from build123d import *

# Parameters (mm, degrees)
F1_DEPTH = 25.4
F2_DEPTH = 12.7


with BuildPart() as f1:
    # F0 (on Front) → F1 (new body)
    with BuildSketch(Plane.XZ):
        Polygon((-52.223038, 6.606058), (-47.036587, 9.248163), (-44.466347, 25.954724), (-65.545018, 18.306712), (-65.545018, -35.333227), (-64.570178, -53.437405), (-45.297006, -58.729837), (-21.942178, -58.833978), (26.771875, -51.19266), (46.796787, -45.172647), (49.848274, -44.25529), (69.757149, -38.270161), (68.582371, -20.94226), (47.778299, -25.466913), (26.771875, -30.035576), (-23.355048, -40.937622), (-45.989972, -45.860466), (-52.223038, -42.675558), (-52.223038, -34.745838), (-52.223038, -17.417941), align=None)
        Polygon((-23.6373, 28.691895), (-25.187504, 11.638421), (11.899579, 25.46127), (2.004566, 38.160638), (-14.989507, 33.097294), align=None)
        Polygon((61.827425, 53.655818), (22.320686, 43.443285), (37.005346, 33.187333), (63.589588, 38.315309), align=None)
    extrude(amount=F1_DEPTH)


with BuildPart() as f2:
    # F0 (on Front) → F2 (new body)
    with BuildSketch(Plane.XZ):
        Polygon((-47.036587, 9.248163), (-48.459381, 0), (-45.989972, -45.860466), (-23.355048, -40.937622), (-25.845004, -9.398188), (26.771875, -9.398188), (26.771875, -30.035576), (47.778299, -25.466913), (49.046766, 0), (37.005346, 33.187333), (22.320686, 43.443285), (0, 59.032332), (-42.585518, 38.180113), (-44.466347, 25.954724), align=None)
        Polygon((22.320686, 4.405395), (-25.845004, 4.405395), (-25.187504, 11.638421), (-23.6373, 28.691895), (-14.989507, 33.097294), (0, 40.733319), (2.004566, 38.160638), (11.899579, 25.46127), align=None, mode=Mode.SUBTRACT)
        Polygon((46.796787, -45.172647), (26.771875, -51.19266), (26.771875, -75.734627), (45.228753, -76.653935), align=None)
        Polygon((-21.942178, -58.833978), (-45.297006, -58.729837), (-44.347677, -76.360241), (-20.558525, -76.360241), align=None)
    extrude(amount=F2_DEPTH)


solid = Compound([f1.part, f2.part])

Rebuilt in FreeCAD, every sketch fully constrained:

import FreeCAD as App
import Part
import Sketcher
Q = App.Units.Quantity

doc = App.newDocument("Part")
params = doc.addObject("Spreadsheet::Sheet", "Params")
for row, (alias, value) in enumerate([
    ("pad1_length", "1 in"),
    ("pad2_length", "0.5 in"),
], start=1):
    params.set(f"A{row}", alias)
    params.set(f"B{row}", "=" + value)
    params.setAlias(f"B{row}", alias)

body = doc.addObject("PartDesign::Body", "Body")
body.AllowCompound = True

sketch1 = body.newObject("Sketcher::SketchObject", "Sketch")
sketch1.AttachmentSupport = (doc.getObject("XZ_Plane"), [""])
sketch1.MapMode = "FlatFace"
sketch1.addGeometry([
    Part.LineSegment(App.Vector(-52.2, 6.6, 0), App.Vector(-47, 9.2, 0)),
    Part.LineSegment(App.Vector(-47, 9.2, 0), App.Vector(-44.5, 26, 0)),
    Part.LineSegment(App.Vector(-44.5, 26, 0), App.Vector(-65.5, 18.3, 0)),
    Part.LineSegment(App.Vector(-65.5, 18.3, 0), App.Vector(-65.5, -35.3, 0)),
    Part.LineSegment(App.Vector(-65.5, -35.3, 0), App.Vector(-64.6, -53.4, 0)),
    Part.LineSegment(App.Vector(-64.6, -53.4, 0), App.Vector(-45.3, -58.7, 0)),
    Part.LineSegment(App.Vector(-45.3, -58.7, 0), App.Vector(-21.9, -58.8, 0)),
    Part.LineSegment(App.Vector(-21.9, -58.8, 0), App.Vector(26.8, -51.2, 0)),
    Part.LineSegment(App.Vector(26.8, -51.2, 0), App.Vector(46.8, -45.2, 0)),
    Part.LineSegment(App.Vector(46.8, -45.2, 0), App.Vector(49.8, -44.3, 0)),
    Part.LineSegment(App.Vector(49.8, -44.3, 0), App.Vector(69.8, -38.3, 0)),
    Part.LineSegment(App.Vector(69.8, -38.3, 0), App.Vector(68.6, -20.9, 0)),
    Part.LineSegment(App.Vector(68.6, -20.9, 0), App.Vector(47.8, -25.5, 0)),
    Part.LineSegment(App.Vector(47.8, -25.5, 0), App.Vector(26.8, -30, 0)),
    Part.LineSegment(App.Vector(26.8, -30, 0), App.Vector(-23.4, -40.9, 0)),
    Part.LineSegment(App.Vector(-23.4, -40.9, 0), App.Vector(-46, -45.9, 0)),
    Part.LineSegment(App.Vector(-46, -45.9, 0), App.Vector(-52.2, -42.7, 0)),
    Part.LineSegment(App.Vector(-52.2, -42.7, 0), App.Vector(-52.2, 6.6, 0)),
    Part.LineSegment(App.Vector(-23.6, 28.7, 0), App.Vector(-25.2, 11.6, 0)),
    Part.LineSegment(App.Vector(-25.2, 11.6, 0), App.Vector(11.9, 25.5, 0)),
    Part.LineSegment(App.Vector(11.9, 25.5, 0), App.Vector(2, 38.2, 0)),
    Part.LineSegment(App.Vector(2, 38.2, 0), App.Vector(-15, 33.1, 0)),
    Part.LineSegment(App.Vector(-15, 33.1, 0), App.Vector(-23.6, 28.7, 0)),
    Part.LineSegment(App.Vector(61.8, 53.7, 0), App.Vector(22.3, 43.4, 0)),
    Part.LineSegment(App.Vector(22.3, 43.4, 0), App.Vector(37, 33.2, 0)),
    Part.LineSegment(App.Vector(37, 33.2, 0), App.Vector(63.6, 38.3, 0)),
    Part.LineSegment(App.Vector(63.6, 38.3, 0), App.Vector(61.8, 53.7, 0)),
], False)
sketch1.addConstraint([
    Sketcher.Constraint("Coincident", 0, 2, 1, 1),
    Sketcher.Constraint("Coincident", 1, 2, 2, 1),
    Sketcher.Constraint("Coincident", 2, 2, 3, 1),
    Sketcher.Constraint("Coincident", 3, 2, 4, 1),
    Sketcher.Constraint("Coincident", 4, 2, 5, 1),
    Sketcher.Constraint("Coincident", 5, 2, 6, 1),
    Sketcher.Constraint("Coincident", 6, 2, 7, 1),
    Sketcher.Constraint("Coincident", 7, 2, 8, 1),
    Sketcher.Constraint("Coincident", 8, 2, 9, 1),
    Sketcher.Constraint("Coincident", 9, 2, 10, 1),
    Sketcher.Constraint("Coincident", 10, 2, 11, 1),
    Sketcher.Constraint("Coincident", 11, 2, 12, 1),
    Sketcher.Constraint("Coincident", 12, 2, 13, 1),
    Sketcher.Constraint("Coincident", 13, 2, 14, 1),
    Sketcher.Constraint("Coincident", 14, 2, 15, 1),
    Sketcher.Constraint("Coincident", 15, 2, 16, 1),
    Sketcher.Constraint("Coincident", 16, 2, 17, 1),
    Sketcher.Constraint("Coincident", 17, 2, 0, 1),
    Sketcher.Constraint("Coincident", 18, 2, 19, 1),
    Sketcher.Constraint("Coincident", 19, 2, 20, 1),
    Sketcher.Constraint("Coincident", 20, 2, 21, 1),
    Sketcher.Constraint("Coincident", 21, 2, 22, 1),
    Sketcher.Constraint("Coincident", 22, 2, 18, 1),
    Sketcher.Constraint("Coincident", 23, 2, 24, 1),
    Sketcher.Constraint("Coincident", 24, 2, 25, 1),
    Sketcher.Constraint("Coincident", 25, 2, 26, 1),
    Sketcher.Constraint("Coincident", 26, 2, 23, 1),
    Sketcher.Constraint("Vertical", 3),
    Sketcher.Constraint("Vertical", 17),
    Sketcher.Constraint("Parallel", 8, 9),
    Sketcher.Constraint("Parallel", 9, 10),
    Sketcher.Constraint("Parallel", 12, 13),
    Sketcher.Constraint("Parallel", 13, 14),
    Sketcher.Constraint("Parallel", 14, 15),
    Sketcher.Constraint("Parallel", 0, 22),
    Sketcher.Constraint("Vertical", 7, 2, 13, 2),
    Sketcher.Constraint("DistanceY", 6, 2, 5, 2, Q("0.0041 in")),
    Sketcher.Constraint("DistanceX", 8, 2, 11, 2, Q("0.8577002 in")),
    Sketcher.Constraint("DistanceY", 6, 2, 11, 2, Q("1.4917999 in")),
    Sketcher.Constraint("DistanceY", 9, 2, 12, 2, Q("0.7396999 in")),
    Sketcher.Constraint("DistanceX", 0, 2, 18, 2, Q("0.8602001 in")),
    Sketcher.Constraint("Distance", 13, 21.497501),
    Sketcher.Constraint("DistanceY", 3, 2, 3, 1, 53.639939),
    Sketcher.Constraint("DistanceX", -1, 1, 12, 2, 47.778299),
    Sketcher.Constraint("DistanceX", 22, 2, -1, 1, 23.6373),
    Sketcher.Constraint("DistanceY", 5, 2, 0, 2, 67.978),
    Sketcher.Constraint("DistanceX", 4, 2, 6, 2, 42.628),
    Sketcher.Constraint("DistanceY", 6, 2, 1, 2, 84.788702),
    Sketcher.Constraint("DistanceX", 7, 2, 9, 2, 23.076399),
    Sketcher.Constraint("DistanceY", 7, 2, 10, 2, 12.922499),
    Sketcher.Constraint("DistanceY", 10, 2, 11, 2, 17.327901),
    Sketcher.Constraint("DistanceY", 22, 2, 21, 2, 4.405399),
    Sketcher.Constraint("DistanceX", 23, 2, 25, 2, 41.268902),
    Sketcher.Constraint("Distance", 5, 19.98662),
    Sketcher.Constraint("Distance", 6, 23.35506),
    Sketcher.Constraint("Distance", 8, 20.910229),
    Sketcher.Constraint("Distance", 10, 20.789061),
    Sketcher.Constraint("Distance", 15, 23.164071),
    Sketcher.Constraint("Distance", 20, 16.099231),
    Sketcher.Constraint("Distance", 22, 9.705249),
    Sketcher.Constraint("Distance", 23, 40.80537),
    Sketcher.Constraint("DistanceY", 17, 1, 17, 2, 49.281616),
    Sketcher.Constraint("DistanceX", 2, 2, -1, 1, 65.545018),
    Sketcher.Constraint("DistanceX", 4, 2, -1, 1, 64.570178),
    Sketcher.Constraint("DistanceY", 6, 2, -1, 1, 58.833978),
    Sketcher.Constraint("DistanceX", 14, 2, -1, 1, 23.355048),
    Sketcher.Constraint("DistanceX", 16, 2, -1, 1, 52.223038),
    Sketcher.Constraint("DistanceY", 16, 2, -1, 1, 42.675558),
    Sketcher.Constraint("DistanceY", -1, 1, 18, 2, 11.638421),
    Sketcher.Constraint("DistanceX", -1, 1, 19, 2, 11.899579),
    Sketcher.Constraint("DistanceY", -1, 1, 19, 2, 25.46127),
    Sketcher.Constraint("DistanceY", -1, 1, 25, 2, 38.315309),
    Sketcher.Constraint("DistanceX", 0, 2, 1, 2, 2.57024),
    Sketcher.Constraint("DistanceY", 0, 2, 2, 2, 9.058549),
    Sketcher.Constraint("DistanceX", 18, 2, 20, 2, 27.19207),
    Sketcher.Constraint("DistanceY", 1, 2, 21, 2, 7.14257),
    Sketcher.Constraint("DistanceX", 20, 2, 23, 2, 20.31612),
    Sketcher.Constraint("DistanceY", 21, 2, 23, 2, 10.345991),
    Sketcher.Constraint("DistanceX", 23, 2, 24, 2, 14.68466),
    Sketcher.Constraint("DistanceY", 21, 2, 24, 2, 0.090039),
    Sketcher.Constraint("DistanceY", 25, 2, 26, 2, 15.340509),
])
pad1 = body.newObject("PartDesign::Pad", "Pad")
pad1.Profile = sketch1
pad1.setExpression("Length", "Params.pad1_length")
body2 = doc.addObject("PartDesign::Body", "Body001")
body2.AllowCompound = True

sketch2 = body2.newObject("Sketcher::SketchObject", "Sketch001")
sketch2.AttachmentSupport = (doc.getObject("XZ_Plane001"), [""])
sketch2.MapMode = "FlatFace"
sketch2.addGeometry([
    Part.LineSegment(App.Vector(-47.036587, 9.248163, 0), App.Vector(-48.459381, 0, 0)),
    Part.LineSegment(App.Vector(-48.459381, 0, 0), App.Vector(-45.989972, -45.860466, 0)),
    Part.LineSegment(App.Vector(-45.989972, -45.860466, 0), App.Vector(-23.355048, -40.937622, 0)),
    Part.LineSegment(App.Vector(-23.355048, -40.937622, 0), App.Vector(-25.845004, -9.398188, 0)),
    Part.LineSegment(App.Vector(-25.845004, -9.398188, 0), App.Vector(26.771875, -9.398188, 0)),
    Part.LineSegment(App.Vector(26.771875, -9.398188, 0), App.Vector(26.771875, -30.035576, 0)),
    Part.LineSegment(App.Vector(26.771875, -30.035576, 0), App.Vector(47.778299, -25.466913, 0)),
    Part.LineSegment(App.Vector(47.778299, -25.466913, 0), App.Vector(49.046766, 0, 0)),
    Part.LineSegment(App.Vector(49.046766, 0, 0), App.Vector(37.005346, 33.187333, 0)),
    Part.LineSegment(App.Vector(37.005346, 33.187333, 0), App.Vector(22.320686, 43.443285, 0)),
    Part.LineSegment(App.Vector(22.320686, 43.443285, 0), App.Vector(0, 59.032332, 0)),
    Part.LineSegment(App.Vector(0, 59.032332, 0), App.Vector(-42.585518, 38.180113, 0)),
    Part.LineSegment(App.Vector(-42.585518, 38.180113, 0), App.Vector(-44.466347, 25.954724, 0)),
    Part.LineSegment(App.Vector(-44.466347, 25.954724, 0), App.Vector(-47.036587, 9.248163, 0)),
    Part.LineSegment(App.Vector(11.899579, 25.46127, 0), App.Vector(22.320686, 4.405395, 0)),
    Part.LineSegment(App.Vector(22.320686, 4.405395, 0), App.Vector(-25.845004, 4.405395, 0)),
    Part.LineSegment(App.Vector(-25.845004, 4.405395, 0), App.Vector(-25.187504, 11.638421, 0)),
    Part.LineSegment(App.Vector(-25.187504, 11.638421, 0), App.Vector(-23.6373, 28.691895, 0)),
    Part.LineSegment(App.Vector(-23.6373, 28.691895, 0), App.Vector(-14.989507, 33.097294, 0)),
    Part.LineSegment(App.Vector(-14.989507, 33.097294, 0), App.Vector(0, 40.733319, 0)),
    Part.LineSegment(App.Vector(0, 40.733319, 0), App.Vector(2.004566, 38.160638, 0)),
    Part.LineSegment(App.Vector(2.004566, 38.160638, 0), App.Vector(11.899579, 25.46127, 0)),
    Part.LineSegment(App.Vector(46.796787, -45.172647, 0), App.Vector(26.771875, -51.19266, 0)),
    Part.LineSegment(App.Vector(26.771875, -51.19266, 0), App.Vector(26.771875, -75.734627, 0)),
    Part.LineSegment(App.Vector(26.771875, -75.734627, 0), App.Vector(45.228753, -76.653935, 0)),
    Part.LineSegment(App.Vector(45.228753, -76.653935, 0), App.Vector(46.796787, -45.172647, 0)),
    Part.LineSegment(App.Vector(-21.942178, -58.833978, 0), App.Vector(-45.297006, -58.729837, 0)),
    Part.LineSegment(App.Vector(-45.297006, -58.729837, 0), App.Vector(-44.347677, -76.360241, 0)),
    Part.LineSegment(App.Vector(-44.347677, -76.360241, 0), App.Vector(-20.558525, -76.360241, 0)),
    Part.LineSegment(App.Vector(-20.558525, -76.360241, 0), App.Vector(-21.942178, -58.833978, 0)),
], False)
sketch2.addConstraint([
    Sketcher.Constraint("Coincident", 0, 2, 1, 1),
    Sketcher.Constraint("Coincident", 1, 2, 2, 1),
    Sketcher.Constraint("Coincident", 2, 2, 3, 1),
    Sketcher.Constraint("Coincident", 3, 2, 4, 1),
    Sketcher.Constraint("Coincident", 4, 2, 5, 1),
    Sketcher.Constraint("Coincident", 5, 2, 6, 1),
    Sketcher.Constraint("Coincident", 6, 2, 7, 1),
    Sketcher.Constraint("Coincident", 7, 2, 8, 1),
    Sketcher.Constraint("Coincident", 8, 2, 9, 1),
    Sketcher.Constraint("Coincident", 9, 2, 10, 1),
    Sketcher.Constraint("Coincident", 10, 2, 11, 1),
    Sketcher.Constraint("Coincident", 11, 2, 12, 1),
    Sketcher.Constraint("Coincident", 12, 2, 13, 1),
    Sketcher.Constraint("Coincident", 13, 2, 0, 1),
    Sketcher.Constraint("Coincident", 14, 2, 15, 1),
    Sketcher.Constraint("Coincident", 15, 2, 16, 1),
    Sketcher.Constraint("Coincident", 16, 2, 17, 1),
    Sketcher.Constraint("Coincident", 17, 2, 18, 1),
    Sketcher.Constraint("Coincident", 18, 2, 19, 1),
    Sketcher.Constraint("Coincident", 19, 2, 20, 1),
    Sketcher.Constraint("Coincident", 20, 2, 21, 1),
    Sketcher.Constraint("Coincident", 21, 2, 14, 1),
    Sketcher.Constraint("Coincident", 22, 2, 23, 1),
    Sketcher.Constraint("Coincident", 23, 2, 24, 1),
    Sketcher.Constraint("Coincident", 24, 2, 25, 1),
    Sketcher.Constraint("Coincident", 25, 2, 22, 1),
    Sketcher.Constraint("Coincident", 26, 2, 27, 1),
    Sketcher.Constraint("Coincident", 27, 2, 28, 1),
    Sketcher.Constraint("Coincident", 28, 2, 29, 1),
    Sketcher.Constraint("Coincident", 29, 2, 26, 1),
    Sketcher.Constraint("Horizontal", 4),
    Sketcher.Constraint("Vertical", 5),
    Sketcher.Constraint("Horizontal", 15),
    Sketcher.Constraint("Vertical", 23),
    Sketcher.Constraint("Horizontal", 28),
    Sketcher.Constraint("PointOnObject", 0, 2, -1),
    Sketcher.Constraint("PointOnObject", 7, 2, -1),
    Sketcher.Constraint("PointOnObject", 10, 2, -2),
    Sketcher.Constraint("PointOnObject", 19, 2, -2),
    Sketcher.Constraint("DistanceY", 6, 2, 9, 2, Q("2.7129999 in")),
    Sketcher.Constraint("DistanceX", 13, 2, 16, 2, Q("0.8602001 in")),
    Sketcher.Constraint("DistanceY", 22, 2, 14, 2, Q("2.1888998 in")),
    Sketcher.Constraint("DistanceY", 29, 2, 26, 2, Q("0.0041 in")),
    Sketcher.Constraint("Distance", 1, 45.926902),
    Sketcher.Constraint("Distance", 6, 21.497501),
    Sketcher.Constraint("DistanceX", 4, 1, 4, 2, 52.616879),
    Sketcher.Constraint("DistanceX", 15, 2, 15, 1, 48.16569),
    Sketcher.Constraint("DistanceX", 28, 1, 28, 2, 23.789152),
    Sketcher.Constraint("DistanceY", 5, 2, 5, 1, 20.637388),
    Sketcher.Constraint("DistanceX", -1, 1, 6, 2, 47.778299),
    Sketcher.Constraint("DistanceX", 17, 2, -1, 1, 23.6373),
    Sketcher.Constraint("DistanceY", 8, 2, 10, 2, 25.844999),
    Sketcher.Constraint("DistanceY", 3, 2, 11, 2, 47.578301),
    Sketcher.Constraint("DistanceX", 15, 2, 16, 2, 0.6575),
    Sketcher.Constraint("DistanceX", 3, 2, 16, 2, 0.6575),
    Sketcher.Constraint("DistanceY", 15, 2, 17, 2, 24.2865),
    Sketcher.Constraint("DistanceY", 17, 2, 18, 2, 4.405399),
    Sketcher.Constraint("DistanceX", 28, 2, 23, 2, 47.3304),
    Sketcher.Constraint("DistanceX", 27, 2, 29, 2, 22.405499),
    Sketcher.Constraint("Distance", 0, 9.356969),
    Sketcher.Constraint("Distance", 2, 23.164071),
    Sketcher.Constraint("Distance", 3, 31.637569),
    Sketcher.Constraint("Distance", 11, 47.416678),
    Sketcher.Constraint("Distance", 16, 7.262849),
    Sketcher.Constraint("Distance", 18, 9.705249),
    Sketcher.Constraint("Distance", 19, 16.822431),
    Sketcher.Constraint("Distance", 21, 16.099231),
    Sketcher.Constraint("Distance", 22, 20.910229),
    Sketcher.Constraint("Distance", 24, 18.479758),
    Sketcher.Constraint("Distance", 26, 23.35506),
    Sketcher.Constraint("DistanceY", 23, 2, 23, 1, 24.541967),
    Sketcher.Constraint("DistanceX", 0, 2, -1, 1, 48.459381),
    Sketcher.Constraint("DistanceX", 2, 2, -1, 1, 23.355048),
    Sketcher.Constraint("DistanceY", 2, 2, -1, 1, 40.937622),
    Sketcher.Constraint("DistanceY", -1, 1, 10, 2, 59.032332),
    Sketcher.Constraint("DistanceY", -1, 1, 16, 2, 11.638421),
    Sketcher.Constraint("DistanceX", -1, 1, 21, 2, 11.899579),
    Sketcher.Constraint("DistanceY", -1, 1, 21, 2, 25.46127),
    Sketcher.Constraint("DistanceY", 27, 2, -1, 1, 76.360241),
    Sketcher.Constraint("DistanceY", 29, 2, -1, 1, 58.833978),
    Sketcher.Constraint("DistanceX", 1, 2, 3, 2, 20.144968),
    Sketcher.Constraint("DistanceX", 4, 2, 7, 2, 22.274891),
    Sketcher.Constraint("DistanceX", 8, 2, 7, 2, 12.04142),
    Sketcher.Constraint("DistanceX", 9, 2, 8, 2, 14.68466),
    Sketcher.Constraint("DistanceX", 12, 2, 11, 2, 1.880829),
    Sketcher.Constraint("DistanceY", 12, 2, 11, 2, 12.225389),
    Sketcher.Constraint("DistanceY", 20, 2, 19, 2, 2.572681),
    Sketcher.Constraint("DistanceX", 14, 2, 22, 2, 4.451189),
    Sketcher.Constraint("DistanceY", 24, 2, 23, 2, 0.919308),
    Sketcher.Constraint("DistanceX", 25, 2, 6, 2, 0.981512),
])
pad2 = body2.newObject("PartDesign::Pad", "Pad001")
pad2.Profile = sketch2
pad2.setExpression("Length", "Params.pad2_length")

doc.recompute()
